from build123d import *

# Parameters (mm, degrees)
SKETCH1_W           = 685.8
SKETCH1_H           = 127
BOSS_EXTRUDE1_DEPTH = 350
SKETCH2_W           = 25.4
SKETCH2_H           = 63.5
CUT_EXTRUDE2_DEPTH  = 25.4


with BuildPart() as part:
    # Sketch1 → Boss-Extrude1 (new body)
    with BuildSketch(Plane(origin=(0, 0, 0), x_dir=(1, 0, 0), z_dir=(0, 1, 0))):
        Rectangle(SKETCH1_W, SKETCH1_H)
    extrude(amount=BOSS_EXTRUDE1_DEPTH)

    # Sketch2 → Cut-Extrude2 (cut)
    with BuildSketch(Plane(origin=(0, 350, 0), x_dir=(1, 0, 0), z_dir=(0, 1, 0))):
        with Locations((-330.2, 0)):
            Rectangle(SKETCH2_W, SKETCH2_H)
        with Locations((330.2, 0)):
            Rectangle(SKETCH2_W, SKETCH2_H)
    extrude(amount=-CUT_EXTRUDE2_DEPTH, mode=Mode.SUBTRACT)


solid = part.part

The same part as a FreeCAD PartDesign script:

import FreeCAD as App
import Part
import Sketcher
from FreeCAD import Vector
Q = App.Units.Quantity

doc = App.newDocument("Part")
body = doc.addObject("PartDesign::Body", "Body")

# Sketch on XZ plane
sketch1 = body.newObject("Sketcher::SketchObject", "Sketch")
sketch1.AttachmentSupport = (doc.getObject("XZ_Plane"), [""])
sketch1.MapMode = "FlatFace"
sketch1.addGeometry([
    Part.LineSegment(Vector(-343, -64, 0), Vector(-343, 64, 0)),
    Part.LineSegment(Vector(-343, 64, 0), Vector(343, 64, 0)),
    Part.LineSegment(Vector(343, 64, 0), Vector(343, -64, 0)),
    Part.LineSegment(Vector(343, -64, 0), Vector(-343, -64, 0)),
], False)
sketch1.addConstraint([
    Sketcher.Constraint("Coincident", 0, 2, 1, 1),
    Sketcher.Constraint("Coincident", 1, 2, 2, 1),
    Sketcher.Constraint("Coincident", 2, 2, 3, 1),
    Sketcher.Constraint("Coincident", 3, 2, 0, 1),
    Sketcher.Constraint("Vertical", 0),
    Sketcher.Constraint("Horizontal", 1),
    Sketcher.Constraint("Vertical", 2),
    Sketcher.Constraint("Horizontal", 3),
    Sketcher.Constraint("Symmetric", 0, 2, 2, 2, -1, 1),
    Sketcher.Constraint("DistanceX", 1, 1, 1, 2, Q("27 in")),
    Sketcher.Constraint("DistanceY", 0, 1, 0, 2, Q("5 in")),
])
pad1 = body.newObject("PartDesign::Pad", "Pad")
pad1.Profile = sketch1
pad1.Length = 350
pad1.Reversed = True

# Sketch on XZ plane
sketch2 = body.newObject("Sketcher::SketchObject", "Sketch001")
sketch2.AttachmentSupport = (doc.getObject("XZ_Plane"), [""])
sketch2.MapMode = "FlatFace"
sketch2.AttachmentOffset = App.Placement(Vector(0, 0, -350), App.Rotation())
sketch2.addGeometry([
    Part.LineSegment(Vector(-343, -32, 0), Vector(-343, 32, 0)),  # 0
    Part.LineSegment(Vector(-343, 32, 0), Vector(-318, 32, 0)),  # 1
    Part.LineSegment(Vector(-318, 32, 0), Vector(-318, -32, 0)),  # 2
    Part.LineSegment(Vector(-318, -32, 0), Vector(-343, -32, 0)),  # 3
    Part.LineSegment(Vector(318, -32, 0), Vector(318, 32, 0)),  # 4
    Part.LineSegment(Vector(318, 32, 0), Vector(343, 32, 0)),  # 5
    Part.LineSegment(Vector(343, 32, 0), Vector(343, -32, 0)),  # 6
    Part.LineSegment(Vector(343, -32, 0), Vector(318, -32, 0)),  # 7
], False)
sketch2.addConstraint([
    Sketcher.Constraint("Coincident", 0, 2, 1, 1),
    Sketcher.Constraint("Coincident", 1, 2, 2, 1),
    Sketcher.Constraint("Coincident", 2, 2, 3, 1),
    Sketcher.Constraint("Coincident", 3, 2, 0, 1),
    Sketcher.Constraint("Coincident", 4, 2, 5, 1),
    Sketcher.Constraint("Coincident", 5, 2, 6, 1),
    Sketcher.Constraint("Coincident", 6, 2, 7, 1),
    Sketcher.Constraint("Coincident", 7, 2, 4, 1),
    Sketcher.Constraint("Vertical", 0),
    Sketcher.Constraint("Horizontal", 1),
    Sketcher.Constraint("Vertical", 2),
    Sketcher.Constraint("Horizontal", 3),
    Sketcher.Constraint("Vertical", 4),
    Sketcher.Constraint("Horizontal", 5),
    Sketcher.Constraint("Vertical", 6),
    Sketcher.Constraint("Horizontal", 7),
    Sketcher.Constraint("Symmetric", 2, 2, 4, 2, -1, 1),
    Sketcher.Constraint("Symmetric", 0, 2, 6, 2, -1, 1),
    Sketcher.Constraint("Horizontal", 1, 2, 4, 2),
    Sketcher.Constraint("DistanceX", 1, 1, 1, 2, Q("1 in")),
    Sketcher.Constraint("DistanceY", 0, 1, 0, 2, Q("2.5 in")),
    Sketcher.Constraint("DistanceX", 1, 2, 4, 2, Q("25 in")),
])
pocket1 = body.newObject("PartDesign::Pocket", "Pocket")
pocket1.Profile = sketch2
pocket1.Length = Q("1 in")
pocket1.Reversed = True

doc.recompute()
